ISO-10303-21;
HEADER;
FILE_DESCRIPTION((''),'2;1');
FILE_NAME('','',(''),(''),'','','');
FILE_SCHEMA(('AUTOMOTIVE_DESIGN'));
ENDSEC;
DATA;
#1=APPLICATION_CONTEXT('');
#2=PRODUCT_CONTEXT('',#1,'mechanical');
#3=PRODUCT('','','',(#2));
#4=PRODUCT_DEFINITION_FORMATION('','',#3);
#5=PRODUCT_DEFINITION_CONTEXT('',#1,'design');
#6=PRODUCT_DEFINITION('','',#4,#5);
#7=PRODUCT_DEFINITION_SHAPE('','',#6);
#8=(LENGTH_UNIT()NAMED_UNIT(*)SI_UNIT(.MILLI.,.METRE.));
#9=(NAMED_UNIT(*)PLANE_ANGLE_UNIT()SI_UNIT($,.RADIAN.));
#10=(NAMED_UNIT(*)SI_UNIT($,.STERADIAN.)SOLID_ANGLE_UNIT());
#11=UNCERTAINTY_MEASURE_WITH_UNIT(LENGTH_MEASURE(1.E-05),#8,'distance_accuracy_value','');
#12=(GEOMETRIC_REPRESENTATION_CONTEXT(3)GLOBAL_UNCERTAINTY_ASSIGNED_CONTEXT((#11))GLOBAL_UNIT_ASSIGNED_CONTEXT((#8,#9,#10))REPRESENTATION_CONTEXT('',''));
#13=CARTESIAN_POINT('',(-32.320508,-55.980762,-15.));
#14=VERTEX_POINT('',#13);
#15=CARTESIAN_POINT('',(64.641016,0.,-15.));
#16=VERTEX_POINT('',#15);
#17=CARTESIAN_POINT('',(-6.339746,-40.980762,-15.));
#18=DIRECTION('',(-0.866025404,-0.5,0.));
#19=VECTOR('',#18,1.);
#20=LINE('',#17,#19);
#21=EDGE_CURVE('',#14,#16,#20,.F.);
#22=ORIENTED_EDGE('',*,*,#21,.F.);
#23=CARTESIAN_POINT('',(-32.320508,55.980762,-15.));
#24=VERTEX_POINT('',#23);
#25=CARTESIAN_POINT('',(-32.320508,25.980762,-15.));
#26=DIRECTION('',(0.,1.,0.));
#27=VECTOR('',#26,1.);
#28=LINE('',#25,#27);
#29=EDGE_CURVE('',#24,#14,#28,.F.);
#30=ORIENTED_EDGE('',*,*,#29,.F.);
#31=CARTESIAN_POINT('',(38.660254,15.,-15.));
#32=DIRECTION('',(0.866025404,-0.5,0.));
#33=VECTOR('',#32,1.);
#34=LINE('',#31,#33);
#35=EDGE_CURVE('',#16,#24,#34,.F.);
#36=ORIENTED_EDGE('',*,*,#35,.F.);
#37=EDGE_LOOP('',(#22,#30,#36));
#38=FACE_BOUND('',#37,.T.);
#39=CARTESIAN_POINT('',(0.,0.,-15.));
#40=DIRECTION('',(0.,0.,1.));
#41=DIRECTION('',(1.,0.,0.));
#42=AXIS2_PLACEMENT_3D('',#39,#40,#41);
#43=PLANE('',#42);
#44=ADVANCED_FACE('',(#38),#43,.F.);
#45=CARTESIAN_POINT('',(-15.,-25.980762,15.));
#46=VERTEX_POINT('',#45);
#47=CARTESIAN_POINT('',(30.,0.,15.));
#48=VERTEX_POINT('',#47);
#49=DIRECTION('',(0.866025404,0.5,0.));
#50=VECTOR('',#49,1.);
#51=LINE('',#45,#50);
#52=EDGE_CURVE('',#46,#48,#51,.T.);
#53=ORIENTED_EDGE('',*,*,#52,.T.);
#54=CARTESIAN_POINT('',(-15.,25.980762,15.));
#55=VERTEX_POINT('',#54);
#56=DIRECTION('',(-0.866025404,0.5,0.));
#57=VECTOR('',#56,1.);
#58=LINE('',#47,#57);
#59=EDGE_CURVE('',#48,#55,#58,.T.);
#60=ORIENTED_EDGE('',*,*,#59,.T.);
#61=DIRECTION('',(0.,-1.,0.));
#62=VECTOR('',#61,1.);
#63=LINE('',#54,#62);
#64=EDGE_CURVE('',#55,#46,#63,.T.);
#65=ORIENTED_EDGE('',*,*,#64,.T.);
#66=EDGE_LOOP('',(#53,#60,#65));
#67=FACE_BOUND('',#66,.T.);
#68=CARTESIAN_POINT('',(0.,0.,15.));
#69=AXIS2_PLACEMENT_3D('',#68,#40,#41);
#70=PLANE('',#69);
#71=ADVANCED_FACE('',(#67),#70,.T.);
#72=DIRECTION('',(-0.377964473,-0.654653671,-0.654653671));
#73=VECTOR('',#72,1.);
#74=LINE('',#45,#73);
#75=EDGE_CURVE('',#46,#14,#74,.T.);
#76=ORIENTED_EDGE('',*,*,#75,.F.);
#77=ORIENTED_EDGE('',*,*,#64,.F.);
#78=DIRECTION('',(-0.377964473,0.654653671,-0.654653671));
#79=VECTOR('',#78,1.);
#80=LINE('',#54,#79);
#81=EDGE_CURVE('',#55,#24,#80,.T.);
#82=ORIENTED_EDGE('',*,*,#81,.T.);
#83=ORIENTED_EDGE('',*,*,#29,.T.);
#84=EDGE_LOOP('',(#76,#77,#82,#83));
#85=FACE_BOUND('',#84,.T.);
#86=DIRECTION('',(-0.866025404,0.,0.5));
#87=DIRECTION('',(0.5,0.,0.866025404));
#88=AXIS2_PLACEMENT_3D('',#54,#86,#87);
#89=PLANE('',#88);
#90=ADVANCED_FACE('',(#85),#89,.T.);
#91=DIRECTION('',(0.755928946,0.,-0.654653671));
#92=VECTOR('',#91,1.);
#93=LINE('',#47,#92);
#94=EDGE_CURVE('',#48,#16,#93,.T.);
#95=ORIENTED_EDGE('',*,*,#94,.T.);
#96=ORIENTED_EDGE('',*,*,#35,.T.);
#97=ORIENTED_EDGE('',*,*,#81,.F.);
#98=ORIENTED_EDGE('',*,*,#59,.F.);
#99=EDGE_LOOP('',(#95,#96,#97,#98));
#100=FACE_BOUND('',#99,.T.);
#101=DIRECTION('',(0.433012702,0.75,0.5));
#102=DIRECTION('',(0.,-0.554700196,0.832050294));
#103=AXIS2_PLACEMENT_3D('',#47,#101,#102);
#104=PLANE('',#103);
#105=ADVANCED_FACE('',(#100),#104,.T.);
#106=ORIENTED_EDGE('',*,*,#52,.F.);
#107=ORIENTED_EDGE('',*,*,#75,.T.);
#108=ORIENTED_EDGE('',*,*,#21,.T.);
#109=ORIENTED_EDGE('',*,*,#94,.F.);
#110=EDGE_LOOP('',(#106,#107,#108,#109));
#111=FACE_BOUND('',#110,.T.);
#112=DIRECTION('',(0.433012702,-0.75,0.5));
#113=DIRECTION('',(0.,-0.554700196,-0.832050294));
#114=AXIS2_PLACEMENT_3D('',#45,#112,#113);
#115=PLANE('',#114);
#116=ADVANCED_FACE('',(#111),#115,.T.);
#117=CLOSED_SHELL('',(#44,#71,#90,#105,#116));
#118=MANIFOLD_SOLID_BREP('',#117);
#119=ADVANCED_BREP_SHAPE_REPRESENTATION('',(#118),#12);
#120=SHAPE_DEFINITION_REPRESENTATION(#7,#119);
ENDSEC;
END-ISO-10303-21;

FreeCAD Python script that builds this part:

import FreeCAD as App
import Part
import Sketcher
Q = App.Units.Quantity


def faces_at(feature, points):
    """Names of the faces that lie closest to the given points."""
    faces = feature.Shape.Faces
    near = lambda p: min(range(len(faces)), key=lambda i: faces[i].distToShape(Part.Vertex(*p))[0])
    return sorted({f"Face{near(p) + 1}" for p in points})


def add_polygon(sketch, points):
    """Adds a closed chain of lines whose ends are joined by coincident constraints."""
    first, n = sketch.GeometryCount, len(points)
    for a, b in zip(points, points[1:] + points[:1]):
        sketch.addGeometry(Part.LineSegment(App.Vector(*a, 0), App.Vector(*b, 0)), False)
    for i in range(n):
        sketch.addConstraint(Sketcher.Constraint("Coincident", first + i, 2, first + (i + 1) % n, 1))

doc = App.newDocument("Part")
body = doc.addObject("PartDesign::Body", "Body")

# Sketch on XY plane
sketch1 = doc.addObject("Sketcher::SketchObject", "Sketch")
body.addObject(sketch1)
sketch1.AttachmentSupport = (doc.XY_Plane, [""])
sketch1.MapMode = "FlatFace"
add_polygon(sketch1, [(30, 0), (-15, 26), (-15, -26)])  # lines 0-2
sketch1.addConstraint([
    Sketcher.Constraint("Vertical", 1),
    Sketcher.Constraint("PointOnObject", 2, 2, -1),
    Sketcher.Constraint("Equal", 0, 2),
    Sketcher.Constraint("Angle", 0, Q("150 deg")),
    Sketcher.Constraint("DistanceX", 0, 2, -1, 1, 15.0),
    Sketcher.Constraint("DistanceX", -1, 1, 2, 2, 30.0),
])
pad1 = doc.addObject("PartDesign::Pad", "Pad")
body.addObject(pad1)
pad1.Profile = sketch1
pad1.Length = 30
pad1.Midplane = True
doc.recompute()

datumplane = doc.addObject("PartDesign::Plane", "DatumPlane")
body.addObject(datumplane)
datumplane.AttachmentSupport = (doc.XY_Plane, [""])
datumplane.MapMode = "FlatFace"
datumplane.AttachmentOffset = App.Placement(App.Vector(0, 0, 15), App.Rotation())
draft = doc.addObject("PartDesign::Draft", "Draft")
body.addObject(draft)
draft.Base = (pad1, faces_at(pad1, [(7.5, -12.99, 0), (-15, 0, 0), (7.5, 12.99, 0)]))
draft.NeutralPlane = (datumplane, [""])
draft.Angle = 30
draft.Reversed = False

doc.recompute()
